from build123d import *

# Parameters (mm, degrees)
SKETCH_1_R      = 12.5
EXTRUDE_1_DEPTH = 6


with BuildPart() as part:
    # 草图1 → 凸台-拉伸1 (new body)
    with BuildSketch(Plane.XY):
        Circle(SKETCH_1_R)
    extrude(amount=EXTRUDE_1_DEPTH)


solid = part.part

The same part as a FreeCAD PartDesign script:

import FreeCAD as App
import Part
import Sketcher
from FreeCAD import Vector

doc = App.newDocument("Part")
body = doc.addObject("PartDesign::Body", "Body")

sketch1 = doc.addObject("Sketcher::SketchObject", "Sketch")
body.addObject(sketch1)
sketch1.AttachmentSupport = (doc.XY_Plane, [""])
sketch1.MapMode = "FlatFace"
sketch1.addGeometry(Part.Circle(Vector(0, 0, 0), Vector(0, 0, 1), 12), False)
sketch1.addConstraint(Sketcher.Constraint("Coincident", 0, 3, -1, 1))
sketch1.addConstraint(Sketcher.Constraint("Diameter", 0, 25.0))
pad1 = doc.addObject("PartDesign::Pad", "Pad")
body.addObject(pad1)
pad1.Profile = sketch1
pad1.Length = 6

doc.recompute()
